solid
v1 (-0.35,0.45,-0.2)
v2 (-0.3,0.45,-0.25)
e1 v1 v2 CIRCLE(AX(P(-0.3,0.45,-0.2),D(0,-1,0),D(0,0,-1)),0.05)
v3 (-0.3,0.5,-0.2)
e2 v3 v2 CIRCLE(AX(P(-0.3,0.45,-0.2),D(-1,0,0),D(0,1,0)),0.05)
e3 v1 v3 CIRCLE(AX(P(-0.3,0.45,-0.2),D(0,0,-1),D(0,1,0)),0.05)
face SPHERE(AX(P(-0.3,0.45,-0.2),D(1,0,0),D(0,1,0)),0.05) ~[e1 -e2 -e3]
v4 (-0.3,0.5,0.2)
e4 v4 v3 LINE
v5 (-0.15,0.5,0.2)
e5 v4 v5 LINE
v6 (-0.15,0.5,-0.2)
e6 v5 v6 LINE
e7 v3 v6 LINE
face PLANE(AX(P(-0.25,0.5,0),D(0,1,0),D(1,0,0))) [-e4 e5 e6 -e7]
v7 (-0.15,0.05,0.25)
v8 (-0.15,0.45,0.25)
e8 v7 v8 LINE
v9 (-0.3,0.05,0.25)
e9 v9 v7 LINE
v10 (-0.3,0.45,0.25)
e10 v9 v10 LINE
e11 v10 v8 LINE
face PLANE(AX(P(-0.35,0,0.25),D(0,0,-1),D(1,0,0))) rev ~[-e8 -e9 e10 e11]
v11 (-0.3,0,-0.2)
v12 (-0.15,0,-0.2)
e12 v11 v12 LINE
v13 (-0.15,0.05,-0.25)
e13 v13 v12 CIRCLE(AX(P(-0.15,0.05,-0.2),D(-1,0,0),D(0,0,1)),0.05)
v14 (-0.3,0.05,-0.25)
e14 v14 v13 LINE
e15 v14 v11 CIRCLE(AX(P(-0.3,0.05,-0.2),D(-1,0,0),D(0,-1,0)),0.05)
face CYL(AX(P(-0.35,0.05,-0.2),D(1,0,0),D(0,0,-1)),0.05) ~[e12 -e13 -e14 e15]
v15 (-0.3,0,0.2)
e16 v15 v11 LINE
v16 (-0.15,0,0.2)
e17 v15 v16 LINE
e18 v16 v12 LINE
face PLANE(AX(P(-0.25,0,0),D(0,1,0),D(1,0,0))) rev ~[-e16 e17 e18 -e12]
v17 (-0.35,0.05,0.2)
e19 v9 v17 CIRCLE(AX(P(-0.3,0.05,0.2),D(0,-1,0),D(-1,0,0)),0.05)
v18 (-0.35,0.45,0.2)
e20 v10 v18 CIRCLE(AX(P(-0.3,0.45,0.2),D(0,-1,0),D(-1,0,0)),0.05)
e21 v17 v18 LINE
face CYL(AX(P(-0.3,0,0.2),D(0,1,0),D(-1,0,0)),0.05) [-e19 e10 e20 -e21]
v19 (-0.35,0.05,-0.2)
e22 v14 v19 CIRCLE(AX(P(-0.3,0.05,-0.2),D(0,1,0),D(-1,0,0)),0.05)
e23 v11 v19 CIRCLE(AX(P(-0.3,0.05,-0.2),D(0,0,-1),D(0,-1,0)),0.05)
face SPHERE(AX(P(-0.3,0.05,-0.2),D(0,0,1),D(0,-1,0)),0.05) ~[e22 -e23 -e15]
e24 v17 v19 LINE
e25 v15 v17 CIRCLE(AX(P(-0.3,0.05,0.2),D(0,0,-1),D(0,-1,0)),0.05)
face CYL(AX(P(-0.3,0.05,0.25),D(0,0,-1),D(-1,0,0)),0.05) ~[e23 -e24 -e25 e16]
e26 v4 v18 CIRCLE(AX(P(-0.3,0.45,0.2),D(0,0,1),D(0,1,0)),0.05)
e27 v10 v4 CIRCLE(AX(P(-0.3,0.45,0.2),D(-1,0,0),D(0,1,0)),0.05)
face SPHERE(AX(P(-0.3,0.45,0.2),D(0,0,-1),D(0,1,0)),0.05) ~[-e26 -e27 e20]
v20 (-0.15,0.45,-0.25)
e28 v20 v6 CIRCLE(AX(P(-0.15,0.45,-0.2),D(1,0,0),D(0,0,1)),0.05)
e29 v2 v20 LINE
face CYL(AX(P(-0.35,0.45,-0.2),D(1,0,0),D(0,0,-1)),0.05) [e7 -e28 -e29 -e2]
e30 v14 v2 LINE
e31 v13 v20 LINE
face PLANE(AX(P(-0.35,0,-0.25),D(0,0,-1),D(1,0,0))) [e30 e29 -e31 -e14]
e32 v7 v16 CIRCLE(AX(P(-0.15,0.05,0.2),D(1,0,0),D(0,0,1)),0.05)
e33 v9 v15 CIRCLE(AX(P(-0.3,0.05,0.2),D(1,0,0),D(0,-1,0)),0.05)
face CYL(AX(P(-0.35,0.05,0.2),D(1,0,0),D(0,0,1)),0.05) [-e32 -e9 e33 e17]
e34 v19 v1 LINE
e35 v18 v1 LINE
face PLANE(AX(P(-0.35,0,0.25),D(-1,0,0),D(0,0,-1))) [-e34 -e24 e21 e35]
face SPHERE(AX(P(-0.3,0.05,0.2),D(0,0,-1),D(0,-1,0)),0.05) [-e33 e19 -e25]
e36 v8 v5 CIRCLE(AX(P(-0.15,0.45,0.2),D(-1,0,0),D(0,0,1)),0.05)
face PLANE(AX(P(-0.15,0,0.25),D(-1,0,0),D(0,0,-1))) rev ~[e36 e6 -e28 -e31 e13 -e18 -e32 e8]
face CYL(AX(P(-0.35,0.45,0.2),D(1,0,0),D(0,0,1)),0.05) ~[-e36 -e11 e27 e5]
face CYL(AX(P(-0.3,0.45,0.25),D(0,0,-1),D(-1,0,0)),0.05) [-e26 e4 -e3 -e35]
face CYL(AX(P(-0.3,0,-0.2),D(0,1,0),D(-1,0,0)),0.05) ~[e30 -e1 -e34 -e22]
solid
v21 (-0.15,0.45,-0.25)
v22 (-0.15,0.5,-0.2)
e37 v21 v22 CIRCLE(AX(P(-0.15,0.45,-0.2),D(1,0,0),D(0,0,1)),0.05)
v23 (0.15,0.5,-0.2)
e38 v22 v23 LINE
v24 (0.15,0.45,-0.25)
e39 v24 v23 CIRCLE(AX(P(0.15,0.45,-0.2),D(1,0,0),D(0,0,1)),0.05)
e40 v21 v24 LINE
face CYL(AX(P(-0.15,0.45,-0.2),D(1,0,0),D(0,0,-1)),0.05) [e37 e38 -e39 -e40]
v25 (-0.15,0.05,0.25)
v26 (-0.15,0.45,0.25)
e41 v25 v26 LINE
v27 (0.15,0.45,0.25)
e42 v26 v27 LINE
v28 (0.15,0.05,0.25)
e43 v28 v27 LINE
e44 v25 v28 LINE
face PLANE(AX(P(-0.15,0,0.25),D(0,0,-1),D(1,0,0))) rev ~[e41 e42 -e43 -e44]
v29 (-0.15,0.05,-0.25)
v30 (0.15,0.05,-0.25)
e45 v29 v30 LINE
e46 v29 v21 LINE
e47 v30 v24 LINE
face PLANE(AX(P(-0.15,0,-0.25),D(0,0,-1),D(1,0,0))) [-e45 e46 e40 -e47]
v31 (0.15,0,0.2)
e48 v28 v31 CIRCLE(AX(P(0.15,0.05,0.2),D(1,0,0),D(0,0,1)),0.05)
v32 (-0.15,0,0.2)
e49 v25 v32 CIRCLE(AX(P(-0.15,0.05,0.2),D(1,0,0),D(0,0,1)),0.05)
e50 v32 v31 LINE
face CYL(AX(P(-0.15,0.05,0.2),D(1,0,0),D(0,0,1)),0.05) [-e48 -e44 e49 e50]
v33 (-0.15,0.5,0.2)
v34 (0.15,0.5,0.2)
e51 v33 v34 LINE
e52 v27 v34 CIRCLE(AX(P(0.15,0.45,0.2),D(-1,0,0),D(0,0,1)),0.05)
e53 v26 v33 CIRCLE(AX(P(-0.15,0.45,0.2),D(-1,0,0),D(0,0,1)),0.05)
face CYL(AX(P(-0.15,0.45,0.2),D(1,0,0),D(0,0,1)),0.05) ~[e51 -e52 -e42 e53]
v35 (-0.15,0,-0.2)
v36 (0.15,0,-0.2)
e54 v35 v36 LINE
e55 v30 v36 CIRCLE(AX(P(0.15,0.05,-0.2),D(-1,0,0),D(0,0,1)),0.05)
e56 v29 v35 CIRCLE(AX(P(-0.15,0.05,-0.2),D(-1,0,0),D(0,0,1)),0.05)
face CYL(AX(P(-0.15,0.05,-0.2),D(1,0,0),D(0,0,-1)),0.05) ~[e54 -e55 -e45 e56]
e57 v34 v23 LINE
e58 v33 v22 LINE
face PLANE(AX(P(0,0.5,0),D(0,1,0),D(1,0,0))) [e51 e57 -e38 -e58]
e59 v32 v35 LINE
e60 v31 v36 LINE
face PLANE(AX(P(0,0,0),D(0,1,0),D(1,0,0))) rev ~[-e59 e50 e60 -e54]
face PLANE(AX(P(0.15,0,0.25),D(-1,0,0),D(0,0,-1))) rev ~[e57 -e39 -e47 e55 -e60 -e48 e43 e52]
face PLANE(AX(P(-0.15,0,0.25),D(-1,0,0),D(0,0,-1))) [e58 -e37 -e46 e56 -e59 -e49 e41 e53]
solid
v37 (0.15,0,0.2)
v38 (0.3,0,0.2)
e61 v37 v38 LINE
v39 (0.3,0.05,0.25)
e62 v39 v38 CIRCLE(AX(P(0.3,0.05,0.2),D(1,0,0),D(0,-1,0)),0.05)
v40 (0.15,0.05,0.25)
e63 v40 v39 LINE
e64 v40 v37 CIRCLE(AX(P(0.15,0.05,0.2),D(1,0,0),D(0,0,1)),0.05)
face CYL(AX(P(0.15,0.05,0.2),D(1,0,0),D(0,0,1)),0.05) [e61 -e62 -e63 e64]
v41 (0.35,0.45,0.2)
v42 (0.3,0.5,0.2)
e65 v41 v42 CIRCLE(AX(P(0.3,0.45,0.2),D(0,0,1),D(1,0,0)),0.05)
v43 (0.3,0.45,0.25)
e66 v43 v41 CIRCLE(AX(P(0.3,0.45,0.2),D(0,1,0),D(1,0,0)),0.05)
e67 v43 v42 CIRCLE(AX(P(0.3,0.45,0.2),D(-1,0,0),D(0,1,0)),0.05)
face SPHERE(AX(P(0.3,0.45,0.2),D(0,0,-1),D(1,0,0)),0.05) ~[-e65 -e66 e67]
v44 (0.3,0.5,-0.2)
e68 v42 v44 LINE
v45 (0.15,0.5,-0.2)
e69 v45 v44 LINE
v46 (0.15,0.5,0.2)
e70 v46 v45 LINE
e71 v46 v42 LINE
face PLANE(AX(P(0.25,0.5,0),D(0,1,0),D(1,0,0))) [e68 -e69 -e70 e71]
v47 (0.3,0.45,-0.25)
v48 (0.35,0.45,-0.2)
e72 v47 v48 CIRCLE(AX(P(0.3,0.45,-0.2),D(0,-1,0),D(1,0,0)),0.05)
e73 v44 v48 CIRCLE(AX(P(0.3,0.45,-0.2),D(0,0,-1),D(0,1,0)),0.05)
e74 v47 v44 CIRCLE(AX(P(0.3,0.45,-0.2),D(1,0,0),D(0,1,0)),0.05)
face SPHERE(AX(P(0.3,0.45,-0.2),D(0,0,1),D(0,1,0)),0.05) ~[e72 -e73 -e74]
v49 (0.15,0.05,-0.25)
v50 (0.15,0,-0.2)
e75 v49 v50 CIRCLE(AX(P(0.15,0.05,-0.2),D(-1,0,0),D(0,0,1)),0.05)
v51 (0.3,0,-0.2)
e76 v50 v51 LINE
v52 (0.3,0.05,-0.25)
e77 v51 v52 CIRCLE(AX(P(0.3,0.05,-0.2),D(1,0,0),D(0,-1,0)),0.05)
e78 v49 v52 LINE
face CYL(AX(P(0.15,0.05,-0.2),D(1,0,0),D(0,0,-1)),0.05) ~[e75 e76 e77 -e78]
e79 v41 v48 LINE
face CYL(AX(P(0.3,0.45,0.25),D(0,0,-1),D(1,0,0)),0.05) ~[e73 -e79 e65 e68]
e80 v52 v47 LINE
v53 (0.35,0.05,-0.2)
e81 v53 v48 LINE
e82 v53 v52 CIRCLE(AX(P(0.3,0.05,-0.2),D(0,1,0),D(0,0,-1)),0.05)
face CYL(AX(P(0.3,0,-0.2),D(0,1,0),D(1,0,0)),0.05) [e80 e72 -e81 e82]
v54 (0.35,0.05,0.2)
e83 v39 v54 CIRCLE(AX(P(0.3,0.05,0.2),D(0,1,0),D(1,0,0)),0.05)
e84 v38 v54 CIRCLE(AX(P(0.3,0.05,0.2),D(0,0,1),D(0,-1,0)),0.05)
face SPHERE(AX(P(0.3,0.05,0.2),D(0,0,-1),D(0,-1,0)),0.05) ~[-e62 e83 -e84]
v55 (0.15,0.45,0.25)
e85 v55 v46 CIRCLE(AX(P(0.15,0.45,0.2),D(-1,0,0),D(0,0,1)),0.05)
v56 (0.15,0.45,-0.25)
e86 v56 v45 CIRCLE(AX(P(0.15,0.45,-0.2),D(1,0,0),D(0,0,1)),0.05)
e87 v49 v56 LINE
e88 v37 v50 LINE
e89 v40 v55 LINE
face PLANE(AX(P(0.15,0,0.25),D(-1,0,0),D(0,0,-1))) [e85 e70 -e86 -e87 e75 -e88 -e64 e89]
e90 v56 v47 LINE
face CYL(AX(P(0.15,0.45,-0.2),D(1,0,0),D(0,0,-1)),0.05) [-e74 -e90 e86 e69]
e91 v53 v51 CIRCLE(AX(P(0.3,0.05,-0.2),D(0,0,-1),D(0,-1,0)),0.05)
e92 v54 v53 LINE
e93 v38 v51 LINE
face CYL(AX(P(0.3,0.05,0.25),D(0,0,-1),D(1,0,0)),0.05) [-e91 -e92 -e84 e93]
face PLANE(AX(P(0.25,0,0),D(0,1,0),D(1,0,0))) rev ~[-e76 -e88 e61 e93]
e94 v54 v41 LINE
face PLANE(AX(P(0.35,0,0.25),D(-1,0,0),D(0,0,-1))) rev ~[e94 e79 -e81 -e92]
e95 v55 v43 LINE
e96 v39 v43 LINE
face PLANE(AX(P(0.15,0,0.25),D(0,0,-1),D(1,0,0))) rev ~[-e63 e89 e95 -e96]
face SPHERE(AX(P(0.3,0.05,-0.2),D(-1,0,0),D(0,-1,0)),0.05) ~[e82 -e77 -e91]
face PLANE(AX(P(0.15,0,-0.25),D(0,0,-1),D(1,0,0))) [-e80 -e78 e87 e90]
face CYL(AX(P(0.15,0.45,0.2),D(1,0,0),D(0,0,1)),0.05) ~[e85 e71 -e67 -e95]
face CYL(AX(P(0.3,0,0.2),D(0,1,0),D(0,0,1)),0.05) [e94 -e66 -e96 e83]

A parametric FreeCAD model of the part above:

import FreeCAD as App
import Part
import Sketcher
Q = App.Units.Quantity


def edges_at(feature, points):
    """Names of the edges that pass closest to the given points."""
    edges = feature.Shape.Edges
    near = lambda p: min(range(len(edges)), key=lambda i: edges[i].distToShape(Part.Vertex(*p))[0])
    return sorted({f"Edge{near(p) + 1}" for p in points})

doc = App.newDocument("Part")
body = doc.addObject("PartDesign::Body", "Body")

# Sketch on XZ plane
sketch1 = body.newObject("Sketcher::SketchObject", "Sketch")
sketch1.AttachmentSupport = (doc.getObject("XZ_Plane"), [""])
sketch1.MapMode = "FlatFace"
sketch1.addGeometry(Part.LineSegment(App.Vector(-0.15, -0.25, 0), App.Vector(-0.15, 0.25, 0)), False)
sketch1.addGeometry(Part.LineSegment(App.Vector(-0.15, 0.25, 0), App.Vector(0.15, 0.25, 0)), False)
sketch1.addGeometry(Part.LineSegment(App.Vector(0.15, 0.25, 0), App.Vector(0.15, -0.25, 0)), False)
sketch1.addGeometry(Part.LineSegment(App.Vector(0.15, -0.25, 0), App.Vector(-0.15, -0.25, 0)), False)
sketch1.addConstraint(Sketcher.Constraint("Coincident", 0, 2, 1, 1))
sketch1.addConstraint(Sketcher.Constraint("Coincident", 1, 2, 2, 1))
sketch1.addConstraint(Sketcher.Constraint("Coincident", 2, 2, 3, 1))
sketch1.addConstraint(Sketcher.Constraint("Coincident", 3, 2, 0, 1))
sketch1.addConstraint(Sketcher.Constraint("Vertical", 0))
sketch1.addConstraint(Sketcher.Constraint("Horizontal", 1))
sketch1.addConstraint(Sketcher.Constraint("Vertical", 2))
sketch1.addConstraint(Sketcher.Constraint("Horizontal", 3))
sketch1.addConstraint(Sketcher.Constraint("Symmetric", 0, 2, 2, 2, -1, 1))
sketch1.addConstraint(Sketcher.Constraint("DistanceX", 1, 1, 1, 2, Q("0.3 mm")))
sketch1.addConstraint(Sketcher.Constraint("DistanceY", 0, 1, 0, 2, Q("0.5 mm")))
pad1 = body.newObject("PartDesign::Pad", "Pad")
pad1.Profile = sketch1
pad1.Length = 0.5
pad1.Reversed = True
doc.recompute()

fillet = body.newObject("PartDesign::Fillet", "Fillet")
fillet.Base = (pad1, edges_at(pad1, [
    (0, 0.5, 0.25),
    (0, 0, 0.25),
    (0, 0, -0.25),
    (0, 0.5, -0.25),
]))
fillet.Radius = 0.05
body2 = doc.addObject("PartDesign::Body", "Body001")

# Sketch on XZ plane
sketch2 = body2.newObject("Sketcher::SketchObject", "Sketch001")
sketch2.AttachmentSupport = (doc.getObject("XZ_Plane001"), [""])
sketch2.MapMode = "FlatFace"
sketch2.addGeometry(Part.LineSegment(App.Vector(0.15, -0.25, 0), App.Vector(0.15, 0.25, 0)), False)
sketch2.addGeometry(Part.LineSegment(App.Vector(0.15, 0.25, 0), App.Vector(0.35, 0.25, 0)), False)
sketch2.addGeometry(Part.LineSegment(App.Vector(0.35, 0.25, 0), App.Vector(0.35, -0.25, 0)), False)
sketch2.addGeometry(Part.LineSegment(App.Vector(0.35, -0.25, 0), App.Vector(0.15, -0.25, 0)), False)
sketch2.addConstraint(Sketcher.Constraint("Coincident", 0, 2, 1, 1))
sketch2.addConstraint(Sketcher.Constraint("Coincident", 1, 2, 2, 1))
sketch2.addConstraint(Sketcher.Constraint("Coincident", 2, 2, 3, 1))
sketch2.addConstraint(Sketcher.Constraint("Coincident", 3, 2, 0, 1))
sketch2.addConstraint(Sketcher.Constraint("Vertical", 0))
sketch2.addConstraint(Sketcher.Constraint("Horizontal", 1))
sketch2.addConstraint(Sketcher.Constraint("Vertical", 2))
sketch2.addConstraint(Sketcher.Constraint("Horizontal", 3))
sketch2.addConstraint(Sketcher.Constraint("DistanceX", 1, 1, 1, 2, Q("0.2 mm")))
sketch2.addConstraint(Sketcher.Constraint("DistanceY", 0, 1, 0, 2, Q("0.5 mm")))
sketch2.addConstraint(Sketcher.Constraint("DistanceX", -1, 1, 0, 2, Q("0.15 mm")))
sketch2.addConstraint(Sketcher.Constraint("DistanceY", -1, 1, 0, 2, Q("0.25 mm")))
pad2 = body2.newObject("PartDesign::Pad", "Pad001")
pad2.Profile = sketch2
pad2.Length = 0.5
pad2.Reversed = True
doc.recompute()

fillet2 = body2.newObject("PartDesign::Fillet", "Fillet001")
fillet2.Base = (pad2, edges_at(pad2, [
    (0.35, 0.5, 0),
    (0.25, 0.5, -0.25),
    (0.25, 0, -0.25),
    (0.35, 0, 0),
    (0.25, 0, 0.25),
    (0.35, 0.25, -0.25),
    (0.35, 0.25, 0.25),
    (0.25, 0.5, 0.25),
]))
fillet2.Radius = 0.05
body3 = doc.addObject("PartDesign::Body", "Body002")

# Sketch on XZ plane
sketch3 = body3.newObject("Sketcher::SketchObject", "Sketch002")
sketch3.AttachmentSupport = (doc.getObject("XZ_Plane002"), [""])
sketch3.MapMode = "FlatFace"
sketch3.addGeometry(Part.LineSegment(App.Vector(-0.35, -0.25, 0), App.Vector(-0.35, 0.25, 0)), False)
sketch3.addGeometry(Part.LineSegment(App.Vector(-0.35, 0.25, 0), App.Vector(-0.15, 0.25, 0)), False)
sketch3.addGeometry(Part.LineSegment(App.Vector(-0.15, 0.25, 0), App.Vector(-0.15, -0.25, 0)), False)
sketch3.addGeometry(Part.LineSegment(App.Vector(-0.15, -0.25, 0), App.Vector(-0.35, -0.25, 0)), False)
sketch3.addConstraint(Sketcher.Constraint("Coincident", 0, 2, 1, 1))
sketch3.addConstraint(Sketcher.Constraint("Coincident", 1, 2, 2, 1))
sketch3.addConstraint(Sketcher.Constraint("Coincident", 2, 2, 3, 1))
sketch3.addConstraint(Sketcher.Constraint("Coincident", 3, 2, 0, 1))
sketch3.addConstraint(Sketcher.Constraint("Vertical", 0))
sketch3.addConstraint(Sketcher.Constraint("Horizontal", 1))
sketch3.addConstraint(Sketcher.Constraint("Vertical", 2))
sketch3.addConstraint(Sketcher.Constraint("Horizontal", 3))
sketch3.addConstraint(Sketcher.Constraint("DistanceX", 1, 1, 1, 2, Q("0.2 mm")))
sketch3.addConstraint(Sketcher.Constraint("DistanceY", 0, 1, 0, 2, Q("0.5 mm")))
sketch3.addConstraint(Sketcher.Constraint("DistanceX", 0, 2, -1, 1, Q("0.35 mm")))
sketch3.addConstraint(Sketcher.Constraint("DistanceY", -1, 1, 0, 2, Q("0.25 mm")))
pad3 = body3.newObject("PartDesign::Pad", "Pad002")
pad3.Profile = sketch3
pad3.Length = 0.5
pad3.Reversed = True
doc.recompute()

fillet3 = body3.newObject("PartDesign::Fillet", "Fillet002")
fillet3.Base = (pad3, edges_at(pad3, [
    (-0.25, 0.5, -0.25),
    (-0.35, 0.5, 0),
    (-0.25, 0.5, 0.25),
    (-0.35, 0, 0),
    (-0.25, 0, -0.25),
    (-0.25, 0, 0.25),
    (-0.35, 0.25, 0.25),
    (-0.35, 0.25, -0.25),
]))
fillet3.Radius = 0.05

doc.recompute()
